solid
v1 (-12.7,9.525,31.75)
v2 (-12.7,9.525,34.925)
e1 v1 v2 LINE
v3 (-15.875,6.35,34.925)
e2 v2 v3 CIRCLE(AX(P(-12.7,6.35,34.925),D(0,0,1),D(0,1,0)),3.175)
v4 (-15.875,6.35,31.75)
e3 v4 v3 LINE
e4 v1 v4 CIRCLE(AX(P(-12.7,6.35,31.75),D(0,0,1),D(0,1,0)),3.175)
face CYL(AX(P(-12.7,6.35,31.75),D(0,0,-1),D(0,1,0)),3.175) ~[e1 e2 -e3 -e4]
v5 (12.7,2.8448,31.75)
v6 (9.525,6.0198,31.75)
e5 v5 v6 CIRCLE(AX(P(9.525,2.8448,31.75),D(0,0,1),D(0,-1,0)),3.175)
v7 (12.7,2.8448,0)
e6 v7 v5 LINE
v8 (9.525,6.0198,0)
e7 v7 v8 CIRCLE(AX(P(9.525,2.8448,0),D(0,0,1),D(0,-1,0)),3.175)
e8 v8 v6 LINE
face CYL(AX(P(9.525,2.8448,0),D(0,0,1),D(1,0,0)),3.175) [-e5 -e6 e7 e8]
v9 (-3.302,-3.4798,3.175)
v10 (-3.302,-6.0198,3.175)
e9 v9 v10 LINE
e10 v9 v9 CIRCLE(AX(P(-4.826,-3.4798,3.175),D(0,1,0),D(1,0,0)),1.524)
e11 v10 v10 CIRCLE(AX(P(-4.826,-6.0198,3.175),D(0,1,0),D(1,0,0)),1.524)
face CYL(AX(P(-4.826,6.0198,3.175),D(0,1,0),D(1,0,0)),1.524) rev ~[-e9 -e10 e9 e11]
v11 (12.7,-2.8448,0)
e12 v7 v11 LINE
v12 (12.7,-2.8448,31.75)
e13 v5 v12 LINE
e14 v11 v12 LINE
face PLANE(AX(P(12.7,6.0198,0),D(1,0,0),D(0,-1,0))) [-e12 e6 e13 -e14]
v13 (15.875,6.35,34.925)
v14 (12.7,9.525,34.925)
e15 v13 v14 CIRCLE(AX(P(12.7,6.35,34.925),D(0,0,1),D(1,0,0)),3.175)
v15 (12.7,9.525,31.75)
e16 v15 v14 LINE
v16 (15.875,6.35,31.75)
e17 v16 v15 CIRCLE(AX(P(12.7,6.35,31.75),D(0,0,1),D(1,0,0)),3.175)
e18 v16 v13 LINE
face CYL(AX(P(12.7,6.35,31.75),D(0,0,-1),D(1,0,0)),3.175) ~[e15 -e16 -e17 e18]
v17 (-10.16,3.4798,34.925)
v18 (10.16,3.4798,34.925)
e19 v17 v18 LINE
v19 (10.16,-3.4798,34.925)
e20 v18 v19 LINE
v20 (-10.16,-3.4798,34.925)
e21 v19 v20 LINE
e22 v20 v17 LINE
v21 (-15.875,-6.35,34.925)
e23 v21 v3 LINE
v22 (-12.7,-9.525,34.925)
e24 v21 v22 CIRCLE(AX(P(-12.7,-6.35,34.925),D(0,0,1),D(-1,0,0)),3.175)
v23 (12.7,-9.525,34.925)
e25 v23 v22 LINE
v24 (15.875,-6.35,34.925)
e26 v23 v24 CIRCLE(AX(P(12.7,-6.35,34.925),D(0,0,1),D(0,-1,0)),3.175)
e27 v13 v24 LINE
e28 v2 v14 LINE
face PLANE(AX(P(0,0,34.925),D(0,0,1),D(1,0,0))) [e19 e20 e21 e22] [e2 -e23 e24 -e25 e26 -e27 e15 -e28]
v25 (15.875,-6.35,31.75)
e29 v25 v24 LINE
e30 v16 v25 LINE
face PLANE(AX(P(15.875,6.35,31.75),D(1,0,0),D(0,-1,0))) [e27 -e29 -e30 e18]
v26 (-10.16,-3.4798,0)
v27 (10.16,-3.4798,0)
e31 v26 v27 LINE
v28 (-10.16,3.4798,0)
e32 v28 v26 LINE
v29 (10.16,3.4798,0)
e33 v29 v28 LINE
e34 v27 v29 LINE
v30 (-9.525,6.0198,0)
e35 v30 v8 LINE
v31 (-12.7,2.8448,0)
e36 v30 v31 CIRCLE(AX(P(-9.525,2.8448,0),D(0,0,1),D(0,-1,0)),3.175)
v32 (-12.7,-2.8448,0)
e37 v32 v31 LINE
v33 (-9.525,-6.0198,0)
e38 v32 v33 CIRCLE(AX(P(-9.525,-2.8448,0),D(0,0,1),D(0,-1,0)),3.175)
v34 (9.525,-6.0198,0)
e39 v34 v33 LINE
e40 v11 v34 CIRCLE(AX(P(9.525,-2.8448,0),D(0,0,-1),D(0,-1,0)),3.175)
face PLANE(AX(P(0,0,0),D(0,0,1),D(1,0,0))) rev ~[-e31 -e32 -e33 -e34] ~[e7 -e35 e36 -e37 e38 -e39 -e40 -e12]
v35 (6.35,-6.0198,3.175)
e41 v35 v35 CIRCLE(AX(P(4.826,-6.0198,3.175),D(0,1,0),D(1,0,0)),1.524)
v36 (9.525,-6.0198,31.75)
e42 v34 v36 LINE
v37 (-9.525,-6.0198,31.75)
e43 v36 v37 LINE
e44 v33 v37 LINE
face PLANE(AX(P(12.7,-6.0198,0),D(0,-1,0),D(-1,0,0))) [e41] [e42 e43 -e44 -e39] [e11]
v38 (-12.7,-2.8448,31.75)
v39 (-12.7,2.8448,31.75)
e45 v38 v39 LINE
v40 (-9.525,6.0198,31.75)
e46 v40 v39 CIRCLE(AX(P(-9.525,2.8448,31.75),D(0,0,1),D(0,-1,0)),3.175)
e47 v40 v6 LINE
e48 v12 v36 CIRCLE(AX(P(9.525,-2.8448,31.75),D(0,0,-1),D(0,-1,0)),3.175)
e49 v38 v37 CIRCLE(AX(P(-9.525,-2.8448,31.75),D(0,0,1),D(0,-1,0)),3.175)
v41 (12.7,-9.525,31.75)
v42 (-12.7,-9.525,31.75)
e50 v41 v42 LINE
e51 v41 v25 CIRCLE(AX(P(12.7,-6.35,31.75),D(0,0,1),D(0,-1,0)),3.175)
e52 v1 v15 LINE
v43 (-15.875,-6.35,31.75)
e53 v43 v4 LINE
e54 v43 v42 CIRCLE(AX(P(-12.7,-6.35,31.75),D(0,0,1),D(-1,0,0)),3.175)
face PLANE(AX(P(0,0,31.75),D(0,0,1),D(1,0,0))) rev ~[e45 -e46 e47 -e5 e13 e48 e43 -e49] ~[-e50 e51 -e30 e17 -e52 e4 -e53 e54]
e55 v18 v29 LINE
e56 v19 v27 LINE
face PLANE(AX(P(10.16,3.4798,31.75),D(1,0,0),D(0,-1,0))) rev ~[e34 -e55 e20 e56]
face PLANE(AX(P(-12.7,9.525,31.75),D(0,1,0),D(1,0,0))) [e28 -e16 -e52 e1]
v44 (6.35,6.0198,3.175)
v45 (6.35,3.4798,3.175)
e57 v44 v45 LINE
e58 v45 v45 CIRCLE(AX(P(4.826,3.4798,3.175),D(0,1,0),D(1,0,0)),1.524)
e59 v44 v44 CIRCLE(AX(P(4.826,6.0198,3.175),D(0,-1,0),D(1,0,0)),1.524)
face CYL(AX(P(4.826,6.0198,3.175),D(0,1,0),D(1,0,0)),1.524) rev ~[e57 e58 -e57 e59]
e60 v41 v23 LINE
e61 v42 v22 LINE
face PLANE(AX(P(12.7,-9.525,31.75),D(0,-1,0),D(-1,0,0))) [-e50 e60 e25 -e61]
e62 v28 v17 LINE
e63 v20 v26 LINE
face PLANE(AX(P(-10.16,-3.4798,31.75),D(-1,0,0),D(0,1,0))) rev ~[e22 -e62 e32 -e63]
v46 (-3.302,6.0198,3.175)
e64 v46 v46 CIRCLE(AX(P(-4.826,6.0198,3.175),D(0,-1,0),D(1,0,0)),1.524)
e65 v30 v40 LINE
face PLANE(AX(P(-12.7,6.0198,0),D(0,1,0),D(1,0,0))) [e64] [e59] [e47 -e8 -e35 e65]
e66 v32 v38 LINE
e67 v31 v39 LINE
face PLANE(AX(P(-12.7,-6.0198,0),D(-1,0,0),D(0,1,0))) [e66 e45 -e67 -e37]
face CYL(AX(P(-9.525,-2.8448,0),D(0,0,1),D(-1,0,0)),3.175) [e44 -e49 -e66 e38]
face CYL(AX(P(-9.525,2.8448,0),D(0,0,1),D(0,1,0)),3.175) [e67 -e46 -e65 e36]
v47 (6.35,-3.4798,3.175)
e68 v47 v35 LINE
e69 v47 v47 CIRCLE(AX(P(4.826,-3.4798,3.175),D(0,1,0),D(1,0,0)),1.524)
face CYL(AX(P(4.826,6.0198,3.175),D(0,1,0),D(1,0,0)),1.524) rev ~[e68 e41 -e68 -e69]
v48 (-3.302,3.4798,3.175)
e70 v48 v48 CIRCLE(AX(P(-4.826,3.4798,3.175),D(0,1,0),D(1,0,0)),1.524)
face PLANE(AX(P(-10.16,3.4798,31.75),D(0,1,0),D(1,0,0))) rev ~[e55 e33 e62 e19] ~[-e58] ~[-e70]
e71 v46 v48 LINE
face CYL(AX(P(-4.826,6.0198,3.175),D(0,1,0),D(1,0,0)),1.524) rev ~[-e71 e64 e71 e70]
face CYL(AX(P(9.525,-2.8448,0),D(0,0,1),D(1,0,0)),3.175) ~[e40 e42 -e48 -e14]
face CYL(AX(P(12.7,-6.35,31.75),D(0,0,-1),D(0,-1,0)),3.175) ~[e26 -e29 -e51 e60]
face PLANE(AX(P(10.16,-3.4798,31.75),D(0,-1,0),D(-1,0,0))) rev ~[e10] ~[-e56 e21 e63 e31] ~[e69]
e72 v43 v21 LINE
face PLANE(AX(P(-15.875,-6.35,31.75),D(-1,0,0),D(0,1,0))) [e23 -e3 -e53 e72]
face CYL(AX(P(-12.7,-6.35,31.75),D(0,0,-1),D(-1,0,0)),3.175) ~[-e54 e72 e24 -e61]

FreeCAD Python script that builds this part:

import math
import FreeCAD as App
import Part
import Sketcher

V = App.Vector
Q = App.Units.Quantity


def edges_at(feature, points):
    """Names of the edges that pass closest to the given points."""
    edges = feature.Shape.Edges
    near = lambda p: min(range(len(edges)), key=lambda i: edges[i].distToShape(Part.Vertex(*p))[0])
    return sorted({f"Edge{near(p) + 1}" for p in points})


def faces_at(feature, points):
    """Names of the faces that lie closest to the given points."""
    faces = feature.Shape.Faces
    near = lambda p: min(range(len(faces)), key=lambda i: faces[i].distToShape(Part.Vertex(*p))[0])
    return sorted({f"Face{near(p) + 1}" for p in points})


def add_polygon(sketch, points):
    """Adds a closed chain of lines whose ends are joined by coincident constraints."""
    first, n = sketch.GeometryCount, len(points)
    for a, b in zip(points, points[1:] + points[:1]):
        sketch.addGeometry(Part.LineSegment(App.Vector(*a, 0), App.Vector(*b, 0)), False)
    for i in range(n):
        sketch.addConstraint(Sketcher.Constraint("Coincident", first + i, 2, first + (i + 1) % n, 1))

doc = App.newDocument("Part")
body = doc.addObject("PartDesign::Body", "Body")

# Sketch on XY plane
sketch1 = body.newObject("Sketcher::SketchObject", "Sketch")
sketch1.AttachmentSupport = (doc.getObject("XY_Plane"), [""])
sketch1.MapMode = "FlatFace"
add_polygon(sketch1, [(-13, -6), (13, -6), (13, 6), (-13, 6)])  # lines 0-3
sketch1.addConstraint(Sketcher.Constraint("Horizontal", 0))
sketch1.addConstraint(Sketcher.Constraint("Vertical", 1))
sketch1.addConstraint(Sketcher.Constraint("Horizontal", 2))
sketch1.addConstraint(Sketcher.Constraint("Vertical", 3))
sketch1.addConstraint(Sketcher.Constraint("Symmetric", 0, 2, 2, 2, -1, 1))
sketch1.addConstraint(Sketcher.Constraint("DistanceX", 0, 1, 0, 2, Q("1 in")))
sketch1.addConstraint(Sketcher.Constraint("DistanceY", 1, 1, 1, 2, Q("0.474 in")))
pad1 = body.newObject("PartDesign::Pad", "Pad")
pad1.Profile = sketch1
pad1.Length = Q("1.25 in")
doc.recompute()

thickness = body.newObject("PartDesign::Thickness", "Thickness")
thickness.Base = (pad1, faces_at(pad1, [(4.233, -2.007, 0), (4.233, -2.007, 31.75)]))
thickness.Value = Q("0.1 in")
thickness.Reversed = True
thickness.Join = "Intersection"

# Sketch on XZ plane
sketch2 = body.newObject("Sketcher::SketchObject", "Sketch001")
sketch2.AttachmentSupport = (doc.getObject("XZ_Plane"), [""])
sketch2.MapMode = "FlatFace"
sketch2.AttachmentOffset = App.Placement(V(0, 0, -0.237 * 25.4), App.Rotation())
sketch2.addGeometry(Part.Circle(V(-4.8, 3.2, 0), V(0, 0, 1), 1.5), False)
sketch2.addGeometry(Part.Circle(V(4.8, 3.2, 0), V(0, 0, 1), 1.5), False)
sketch2.addConstraint(Sketcher.Constraint("Equal", 0, 1))
sketch2.addConstraint(Sketcher.Constraint("Symmetric", 0, 3, 1, 3, -2))
sketch2.addConstraint(Sketcher.Constraint("Diameter", 0, Q("0.12 in")))
sketch2.addConstraint(Sketcher.Constraint("DistanceX", 0, 3, 1, 3, Q("0.38 in")))
sketch2.addConstraint(Sketcher.Constraint("DistanceY", -1, 1, 0, 3, Q("0.125 in")))
pocket1 = body.newObject("PartDesign::Pocket", "Pocket")
pocket1.Profile = sketch2
pocket1.Type = "ThroughAll"
pocket1.Reversed = True

# Sketch on XY plane
sketch3 = body.newObject("Sketcher::SketchObject", "Sketch002")
sketch3.AttachmentSupport = (doc.getObject("XY_Plane"), [""])
sketch3.MapMode = "FlatFace"
sketch3.AttachmentOffset = App.Placement(V(0, 0, 1.25 * 25.4), App.Rotation())
sketch3.addGeometry(Part.LineSegment(V(12.7, 9.5, 0), V(-12.7, 9.5, 0)), False)  # 0
sketch3.addGeometry(Part.ArcOfCircle(Part.Circle(V(-12.7, 6.3, 0), V(0, 0, 1), 3.2), math.radians(90), math.radians(180)), False)  # 1
sketch3.addGeometry(Part.LineSegment(V(-15.9, 6.3, 0), V(-15.9, -6.3, 0)), False)  # 2
sketch3.addGeometry(Part.ArcOfCircle(Part.Circle(V(-12.7, -6.3, 0), V(0, 0, 1), 3.2), math.radians(180), math.radians(270)), False)  # 3
sketch3.addGeometry(Part.LineSegment(V(-12.7, -9.5, 0), V(12.7, -9.5, 0)), False)  # 4
sketch3.addGeometry(Part.ArcOfCircle(Part.Circle(V(12.7, -6.3, 0), V(0, 0, 1), 3.2), math.radians(-90), math.radians(0)), False)  # 5
sketch3.addGeometry(Part.LineSegment(V(15.9, -6.3, 0), V(15.9, 6.3, 0)), False)  # 6
sketch3.addGeometry(Part.ArcOfCircle(Part.Circle(V(12.7, 6.3, 0), V(0, 0, 1), 3.2), math.radians(0), math.radians(90)), False)  # 7
add_polygon(sketch3, [(-10.2, -3.5), (-10.2, 3.5), (10.2, 3.5), (10.2, -3.5)])  # lines 8-11
sketch3.addConstraint(Sketcher.Constraint("Tangent", 0, 2, 1, 1))
sketch3.addConstraint(Sketcher.Constraint("Tangent", 1, 2, 2, 1))
sketch3.addConstraint(Sketcher.Constraint("Tangent", 2, 2, 3, 1))
sketch3.addConstraint(Sketcher.Constraint("Tangent", 3, 2, 4, 1))
sketch3.addConstraint(Sketcher.Constraint("Tangent", 4, 2, 5, 1))
sketch3.addConstraint(Sketcher.Constraint("Tangent", 5, 2, 6, 1))
sketch3.addConstraint(Sketcher.Constraint("Tangent", 6, 2, 7, 1))
sketch3.addConstraint(Sketcher.Constraint("Tangent", 7, 2, 0, 1))
sketch3.addConstraint(Sketcher.Constraint("Horizontal", 0))
sketch3.addConstraint(Sketcher.Constraint("Vertical", 2))
sketch3.addConstraint(Sketcher.Constraint("Horizontal", 4))
sketch3.addConstraint(Sketcher.Constraint("Vertical", 6))
sketch3.addConstraint(Sketcher.Constraint("Vertical", 8))
sketch3.addConstraint(Sketcher.Constraint("Horizontal", 9))
sketch3.addConstraint(Sketcher.Constraint("Vertical", 10))
sketch3.addConstraint(Sketcher.Constraint("Horizontal", 11))
sketch3.addConstraint(Sketcher.Constraint("Equal", 1, 3))
sketch3.addConstraint(Sketcher.Constraint("Equal", 3, 5))
sketch3.addConstraint(Sketcher.Constraint("Equal", 5, 7))
sketch3.addConstraint(Sketcher.Constraint("Symmetric", 1, 3, 5, 3, -1, 1))
sketch3.addConstraint(Sketcher.Constraint("Symmetric", 8, 2, 10, 2, -1, 1))
sketch3.addConstraint(Sketcher.Constraint("Radius", 1, Q("0.125 in")))
sketch3.addConstraint(Sketcher.Constraint("DistanceX", 0, 2, 0, 1, Q("1 in")))
sketch3.addConstraint(Sketcher.Constraint("DistanceY", 3, 2, 0, 2, Q("0.75 in")))
sketch3.addConstraint(Sketcher.Constraint("DistanceX", 9, 1, 9, 2, Q("0.8 in")))
sketch3.addConstraint(Sketcher.Constraint("DistanceY", 8, 1, 8, 2, Q("0.274 in")))
pad2 = body.newObject("PartDesign::Pad", "Pad001")
pad2.Profile = sketch3
pad2.Length = Q("0.125 in")
doc.recompute()

fillet = body.newObject("PartDesign::Fillet", "Fillet")
fillet.Base = (pad2, edges_at(pad2, [
    (12.7, 6.02, 15.875),
    (12.7, -6.02, 15.875),
    (-12.7, 6.02, 15.875),
    (-12.7, -6.02, 15.875),
]))
fillet.Radius = Q("0.125 in")

doc.recompute()
